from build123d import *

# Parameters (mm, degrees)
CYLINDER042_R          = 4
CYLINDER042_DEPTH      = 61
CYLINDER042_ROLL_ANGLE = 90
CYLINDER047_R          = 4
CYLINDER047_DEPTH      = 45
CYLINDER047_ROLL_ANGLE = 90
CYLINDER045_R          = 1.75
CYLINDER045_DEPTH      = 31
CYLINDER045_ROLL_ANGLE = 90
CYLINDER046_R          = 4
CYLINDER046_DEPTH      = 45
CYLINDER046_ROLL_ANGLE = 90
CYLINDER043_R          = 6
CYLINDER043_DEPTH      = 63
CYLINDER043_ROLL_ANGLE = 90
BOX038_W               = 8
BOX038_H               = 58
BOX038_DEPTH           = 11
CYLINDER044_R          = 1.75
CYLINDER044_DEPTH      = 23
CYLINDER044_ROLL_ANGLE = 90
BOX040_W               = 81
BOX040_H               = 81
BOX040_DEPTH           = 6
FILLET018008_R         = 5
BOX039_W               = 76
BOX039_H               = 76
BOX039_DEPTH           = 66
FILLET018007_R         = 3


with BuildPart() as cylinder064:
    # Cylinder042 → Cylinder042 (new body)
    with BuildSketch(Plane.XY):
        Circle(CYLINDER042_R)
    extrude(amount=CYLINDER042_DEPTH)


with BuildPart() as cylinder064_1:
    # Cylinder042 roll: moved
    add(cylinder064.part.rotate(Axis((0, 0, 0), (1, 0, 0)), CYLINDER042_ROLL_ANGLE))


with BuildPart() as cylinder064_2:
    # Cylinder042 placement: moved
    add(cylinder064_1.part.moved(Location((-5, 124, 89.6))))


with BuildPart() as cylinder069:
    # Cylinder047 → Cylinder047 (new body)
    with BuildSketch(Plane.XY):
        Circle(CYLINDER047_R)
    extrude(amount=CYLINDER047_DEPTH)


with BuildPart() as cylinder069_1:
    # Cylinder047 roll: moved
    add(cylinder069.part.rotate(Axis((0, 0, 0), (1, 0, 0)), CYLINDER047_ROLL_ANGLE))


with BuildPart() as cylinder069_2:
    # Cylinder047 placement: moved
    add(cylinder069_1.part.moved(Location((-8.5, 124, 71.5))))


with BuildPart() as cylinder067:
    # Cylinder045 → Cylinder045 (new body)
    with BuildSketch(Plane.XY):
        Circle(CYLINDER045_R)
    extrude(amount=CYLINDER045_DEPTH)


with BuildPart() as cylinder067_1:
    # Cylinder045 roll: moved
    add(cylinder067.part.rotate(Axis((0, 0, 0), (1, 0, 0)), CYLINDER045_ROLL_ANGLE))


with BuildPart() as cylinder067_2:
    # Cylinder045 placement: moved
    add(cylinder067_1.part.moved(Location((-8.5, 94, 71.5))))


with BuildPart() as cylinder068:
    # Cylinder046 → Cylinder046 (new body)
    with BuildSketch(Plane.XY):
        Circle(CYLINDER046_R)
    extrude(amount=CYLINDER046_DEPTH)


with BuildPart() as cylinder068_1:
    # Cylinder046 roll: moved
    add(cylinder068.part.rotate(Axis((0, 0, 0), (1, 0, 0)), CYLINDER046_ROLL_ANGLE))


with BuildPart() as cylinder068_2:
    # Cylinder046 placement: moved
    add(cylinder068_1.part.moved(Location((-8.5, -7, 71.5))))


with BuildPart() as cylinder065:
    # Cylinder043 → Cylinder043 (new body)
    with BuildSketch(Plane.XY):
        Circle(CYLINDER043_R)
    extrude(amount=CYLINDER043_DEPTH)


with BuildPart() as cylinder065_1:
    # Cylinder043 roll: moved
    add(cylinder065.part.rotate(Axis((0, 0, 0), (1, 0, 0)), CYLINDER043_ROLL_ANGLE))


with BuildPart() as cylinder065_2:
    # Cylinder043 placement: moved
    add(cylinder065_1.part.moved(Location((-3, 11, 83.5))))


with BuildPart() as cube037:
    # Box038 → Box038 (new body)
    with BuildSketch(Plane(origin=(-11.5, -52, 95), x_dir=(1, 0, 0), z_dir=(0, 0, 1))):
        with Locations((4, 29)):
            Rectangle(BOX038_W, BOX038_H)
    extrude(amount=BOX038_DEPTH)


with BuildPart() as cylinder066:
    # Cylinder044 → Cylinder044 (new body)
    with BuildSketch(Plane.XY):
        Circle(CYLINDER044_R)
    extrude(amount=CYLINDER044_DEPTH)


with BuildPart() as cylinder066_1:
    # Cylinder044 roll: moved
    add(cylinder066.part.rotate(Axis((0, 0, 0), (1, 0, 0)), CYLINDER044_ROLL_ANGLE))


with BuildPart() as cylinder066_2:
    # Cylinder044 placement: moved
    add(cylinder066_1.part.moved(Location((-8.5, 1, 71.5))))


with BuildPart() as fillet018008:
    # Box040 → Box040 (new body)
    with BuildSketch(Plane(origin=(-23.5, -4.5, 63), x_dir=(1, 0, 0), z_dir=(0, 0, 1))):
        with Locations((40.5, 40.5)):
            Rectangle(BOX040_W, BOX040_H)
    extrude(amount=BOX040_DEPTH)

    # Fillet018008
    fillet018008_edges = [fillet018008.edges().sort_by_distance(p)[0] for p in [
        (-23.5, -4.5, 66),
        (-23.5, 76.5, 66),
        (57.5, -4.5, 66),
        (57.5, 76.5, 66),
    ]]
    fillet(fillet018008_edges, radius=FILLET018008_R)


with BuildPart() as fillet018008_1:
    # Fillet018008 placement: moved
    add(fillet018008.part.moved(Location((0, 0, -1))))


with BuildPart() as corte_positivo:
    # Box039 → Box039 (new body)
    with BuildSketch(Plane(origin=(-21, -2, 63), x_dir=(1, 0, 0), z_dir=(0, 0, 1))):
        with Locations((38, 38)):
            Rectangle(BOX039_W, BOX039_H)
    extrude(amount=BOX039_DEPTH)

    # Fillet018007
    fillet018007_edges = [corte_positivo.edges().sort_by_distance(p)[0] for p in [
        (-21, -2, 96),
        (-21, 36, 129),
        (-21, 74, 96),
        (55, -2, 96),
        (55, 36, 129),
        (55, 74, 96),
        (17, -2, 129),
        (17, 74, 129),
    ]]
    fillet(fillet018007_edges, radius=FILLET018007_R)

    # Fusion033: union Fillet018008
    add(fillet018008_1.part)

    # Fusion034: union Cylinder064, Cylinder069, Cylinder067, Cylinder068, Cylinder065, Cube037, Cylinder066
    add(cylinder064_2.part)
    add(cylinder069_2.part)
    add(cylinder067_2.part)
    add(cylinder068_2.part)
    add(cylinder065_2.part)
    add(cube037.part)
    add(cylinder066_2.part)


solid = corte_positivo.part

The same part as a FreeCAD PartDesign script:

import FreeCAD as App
import Part
import Sketcher
from FreeCAD import Vector


def edges_at(feature, points):
    """Names of the edges that pass closest to the given points."""
    edges = feature.Shape.Edges
    near = lambda p: min(range(len(edges)), key=lambda i: edges[i].distToShape(Part.Vertex(*p))[0])
    return sorted({f"Edge{near(p) + 1}" for p in points})


def add_polygon(sketch, points):
    """Adds a closed chain of lines whose ends are joined by coincident constraints."""
    first, n = sketch.GeometryCount, len(points)
    for a, b in zip(points, points[1:] + points[:1]):
        sketch.addGeometry(Part.LineSegment(App.Vector(*a, 0), App.Vector(*b, 0)), False)
    for i in range(n):
        sketch.addConstraint(Sketcher.Constraint("Coincident", first + i, 2, first + (i + 1) % n, 1))

doc = App.newDocument("Part")
body = doc.addObject("PartDesign::Body", "Body")

# Sketch on XY plane
sketch1 = body.newObject("Sketcher::SketchObject", "Sketch")
sketch1.AttachmentSupport = (doc.getObject("XY_Plane"), [""])
sketch1.MapMode = "FlatFace"
sketch1.addGeometry(Part.Circle(Vector(0, 0, 0), Vector(0, 0, 1), 4), False)
sketch1.addConstraint([
    Sketcher.Constraint("Coincident", 0, 3, -1, 1),
    Sketcher.Constraint("Diameter", 0, 8.0),
])
pad1 = body.newObject("PartDesign::Pad", "Pad")
pad1.Profile = sketch1
pad1.Length = 61
body2 = doc.addObject("PartDesign::Body", "Body001")
doc.recompute()

body.Placement = App.Placement(Vector(0, 0, 0), App.Rotation(Vector(1, 0, 0), 90))
boolean = body2.newObject("PartDesign::Boolean", "Boolean")
boolean.Type = "Fuse"
boolean.addObjects([body])
body3 = doc.addObject("PartDesign::Body", "Body002")
doc.recompute()

body2.Placement = App.Placement(Vector(-5, 124, 89.6), App.Rotation(Vector(0, 0, 1), 0))
boolean2 = body3.newObject("PartDesign::Boolean", "Boolean001")
boolean2.Type = "Fuse"
boolean2.addObjects([body2])
body4 = doc.addObject("PartDesign::Body", "Body003")

# Sketch on XY plane
sketch2 = body4.newObject("Sketcher::SketchObject", "Sketch001")
sketch2.AttachmentSupport = (doc.getObject("XY_Plane003"), [""])
sketch2.MapMode = "FlatFace"
sketch2.addGeometry(Part.Circle(Vector(0, 0, 0), Vector(0, 0, 1), 4), False)
sketch2.addConstraint([
    Sketcher.Constraint("Coincident", 0, 3, -1, 1),
    Sketcher.Constraint("Diameter", 0, 8.0),
])
pad2 = body4.newObject("PartDesign::Pad", "Pad001")
pad2.Profile = sketch2
pad2.Length = 45
body5 = doc.addObject("PartDesign::Body", "Body004")
doc.recompute()

body4.Placement = App.Placement(Vector(0, 0, 0), App.Rotation(Vector(1, 0, 0), 90))
boolean3 = body5.newObject("PartDesign::Boolean", "Boolean002")
boolean3.Type = "Fuse"
boolean3.addObjects([body4])
body6 = doc.addObject("PartDesign::Body", "Body005")
doc.recompute()

body5.Placement = App.Placement(Vector(-8.5, 124, 71.5), App.Rotation(Vector(0, 0, 1), 0))
boolean4 = body6.newObject("PartDesign::Boolean", "Boolean003")
boolean4.Type = "Fuse"
boolean4.addObjects([body5])
body7 = doc.addObject("PartDesign::Body", "Body006")

# Sketch on XY plane
sketch3 = body7.newObject("Sketcher::SketchObject", "Sketch002")
sketch3.AttachmentSupport = (doc.getObject("XY_Plane006"), [""])
sketch3.MapMode = "FlatFace"
sketch3.addGeometry(Part.Circle(Vector(0, 0, 0), Vector(0, 0, 1), 1.8), False)
sketch3.addConstraint([
    Sketcher.Constraint("Coincident", 0, 3, -1, 1),
    Sketcher.Constraint("Diameter", 0, 3.5),
])
pad3 = body7.newObject("PartDesign::Pad", "Pad002")
pad3.Profile = sketch3
pad3.Length = 31
body8 = doc.addObject("PartDesign::Body", "Body007")
doc.recompute()

body7.Placement = App.Placement(Vector(0, 0, 0), App.Rotation(Vector(1, 0, 0), 90))
boolean5 = body8.newObject("PartDesign::Boolean", "Boolean004")
boolean5.Type = "Fuse"
boolean5.addObjects([body7])
body9 = doc.addObject("PartDesign::Body", "Body008")
doc.recompute()

body8.Placement = App.Placement(Vector(-8.5, 94, 71.5), App.Rotation(Vector(0, 0, 1), 0))
boolean6 = body9.newObject("PartDesign::Boolean", "Boolean005")
boolean6.Type = "Fuse"
boolean6.addObjects([body8])
body10 = doc.addObject("PartDesign::Body", "Body009")

# Sketch on XY plane
sketch4 = body10.newObject("Sketcher::SketchObject", "Sketch003")
sketch4.AttachmentSupport = (doc.getObject("XY_Plane009"), [""])
sketch4.MapMode = "FlatFace"
sketch4.addGeometry(Part.Circle(Vector(0, 0, 0), Vector(0, 0, 1), 4), False)
sketch4.addConstraint([
    Sketcher.Constraint("Coincident", 0, 3, -1, 1),
    Sketcher.Constraint("Diameter", 0, 8.0),
])
pad4 = body10.newObject("PartDesign::Pad", "Pad003")
pad4.Profile = sketch4
pad4.Length = 45
body11 = doc.addObject("PartDesign::Body", "Body010")
doc.recompute()

body10.Placement = App.Placement(Vector(0, 0, 0), App.Rotation(Vector(1, 0, 0), 90))
boolean7 = body11.newObject("PartDesign::Boolean", "Boolean006")
boolean7.Type = "Fuse"
boolean7.addObjects([body10])
body12 = doc.addObject("PartDesign::Body", "Body011")
doc.recompute()

body11.Placement = App.Placement(Vector(-8.5, -7, 71.5), App.Rotation(Vector(0, 0, 1), 0))
boolean8 = body12.newObject("PartDesign::Boolean", "Boolean007")
boolean8.Type = "Fuse"
boolean8.addObjects([body11])
body13 = doc.addObject("PartDesign::Body", "Body012")

# Sketch on XY plane
sketch5 = body13.newObject("Sketcher::SketchObject", "Sketch004")
sketch5.AttachmentSupport = (doc.getObject("XY_Plane012"), [""])
sketch5.MapMode = "FlatFace"
sketch5.addGeometry(Part.Circle(Vector(0, 0, 0), Vector(0, 0, 1), 6), False)
sketch5.addConstraint([
    Sketcher.Constraint("Coincident", 0, 3, -1, 1),
    Sketcher.Constraint("Diameter", 0, 12.0),
])
pad5 = body13.newObject("PartDesign::Pad", "Pad004")
pad5.Profile = sketch5
pad5.Length = 63
body14 = doc.addObject("PartDesign::Body", "Body013")
doc.recompute()

body13.Placement = App.Placement(Vector(0, 0, 0), App.Rotation(Vector(1, 0, 0), 90))
boolean9 = body14.newObject("PartDesign::Boolean", "Boolean008")
boolean9.Type = "Fuse"
boolean9.addObjects([body13])
body15 = doc.addObject("PartDesign::Body", "Body014")
doc.recompute()

body14.Placement = App.Placement(Vector(-3, 11, 83.5), App.Rotation(Vector(0, 0, 1), 0))
boolean10 = body15.newObject("PartDesign::Boolean", "Boolean009")
boolean10.Type = "Fuse"
boolean10.addObjects([body14])
body16 = doc.addObject("PartDesign::Body", "Body015")

# Sketch on XY plane
sketch6 = body16.newObject("Sketcher::SketchObject", "Sketch005")
sketch6.AttachmentSupport = (doc.getObject("XY_Plane015"), [""])
sketch6.MapMode = "FlatFace"
sketch6.AttachmentOffset = App.Placement(Vector(0, 0, 95), App.Rotation())
add_polygon(sketch6, [(-12, 6), (-12, -52), (-4, -52), (-4, 6)])  # lines 0-3
sketch6.addConstraint([
    Sketcher.Constraint("Vertical", 0),
    Sketcher.Constraint("Horizontal", 1),
    Sketcher.Constraint("Vertical", 2),
    Sketcher.Constraint("Horizontal", 3),
    Sketcher.Constraint("DistanceX", 1, 1, 1, 2, 8.0),
    Sketcher.Constraint("DistanceY", 0, 2, 0, 1, 58.0),
    Sketcher.Constraint("DistanceY", 0, 2, -1, 1, 52.0),
    Sketcher.Constraint("DistanceX", 0, 2, -1, 1, 11.5),
])
pad6 = body16.newObject("PartDesign::Pad", "Pad005")
pad6.Profile = sketch6
pad6.Length = 11
body17 = doc.addObject("PartDesign::Body", "Body016")

# Sketch on XY plane
sketch7 = body17.newObject("Sketcher::SketchObject", "Sketch006")
sketch7.AttachmentSupport = (doc.getObject("XY_Plane016"), [""])
sketch7.MapMode = "FlatFace"
sketch7.addGeometry(Part.Circle(Vector(0, 0, 0), Vector(0, 0, 1), 1.8), False)
sketch7.addConstraint([
    Sketcher.Constraint("Coincident", 0, 3, -1, 1),
    Sketcher.Constraint("Diameter", 0, 3.5),
])
pad7 = body17.newObject("PartDesign::Pad", "Pad006")
pad7.Profile = sketch7
pad7.Length = 23
body18 = doc.addObject("PartDesign::Body", "Body017")
doc.recompute()

body17.Placement = App.Placement(Vector(0, 0, 0), App.Rotation(Vector(1, 0, 0), 90))
boolean11 = body18.newObject("PartDesign::Boolean", "Boolean010")
boolean11.Type = "Fuse"
boolean11.addObjects([body17])
body19 = doc.addObject("PartDesign::Body", "Body018")
doc.recompute()

body18.Placement = App.Placement(Vector(-8.5, 1, 71.5), App.Rotation(Vector(0, 0, 1), 0))
boolean12 = body19.newObject("PartDesign::Boolean", "Boolean011")
boolean12.Type = "Fuse"
boolean12.addObjects([body18])
body20 = doc.addObject("PartDesign::Body", "Body019")

# Sketch on XY plane
sketch8 = body20.newObject("Sketcher::SketchObject", "Sketch007")
sketch8.AttachmentSupport = (doc.getObject("XY_Plane019"), [""])
sketch8.MapMode = "FlatFace"
sketch8.AttachmentOffset = App.Placement(Vector(0, 0, 63), App.Rotation())
add_polygon(sketch8, [(-24, 76), (-24, -4), (58, -4), (58, 76)])  # lines 0-3
sketch8.addConstraint([
    Sketcher.Constraint("Vertical", 0),
    Sketcher.Constraint("Horizontal", 1),
    Sketcher.Constraint("Vertical", 2),
    Sketcher.Constraint("Horizontal", 3),
    Sketcher.Constraint("Equal", 3, 0),
    Sketcher.Constraint("DistanceX", 1, 1, 1, 2, 81.0),
    Sketcher.Constraint("DistanceX", 0, 2, -1, 1, 23.5),
    Sketcher.Constraint("DistanceY", 0, 2, -1, 1, 4.5),
])
pad8 = body20.newObject("PartDesign::Pad", "Pad007")
pad8.Profile = sketch8
pad8.Length = 6
doc.recompute()

fillet = body20.newObject("PartDesign::Fillet", "Fillet")
fillet.Base = (pad8, edges_at(pad8, [
    (-23.5, -4.5, 66),
    (-23.5, 76.5, 66),
    (57.5, -4.5, 66),
    (57.5, 76.5, 66),
]))
fillet.Radius = 5
body21 = doc.addObject("PartDesign::Body", "Body020")
doc.recompute()

body20.Placement = App.Placement(Vector(0, 0, -1), App.Rotation(Vector(0, 0, 1), 0))
boolean13 = body21.newObject("PartDesign::Boolean", "Boolean012")
boolean13.Type = "Fuse"
boolean13.addObjects([body20])
body22 = doc.addObject("PartDesign::Body", "Body021")
body22.AllowCompound = True

# Sketch on XY plane
sketch9 = body22.newObject("Sketcher::SketchObject", "Sketch008")
sketch9.AttachmentSupport = (doc.getObject("XY_Plane021"), [""])
sketch9.MapMode = "FlatFace"
sketch9.AttachmentOffset = App.Placement(Vector(0, 0, 63), App.Rotation())
add_polygon(sketch9, [(-21, 74), (-21, -2), (55, -2), (55, 74)])  # lines 0-3
sketch9.addConstraint([
    Sketcher.Constraint("Vertical", 0),
    Sketcher.Constraint("Horizontal", 1),
    Sketcher.Constraint("Vertical", 2),
    Sketcher.Constraint("Horizontal", 3),
    Sketcher.Constraint("Equal", 3, 0),
    Sketcher.Constraint("DistanceX", 1, 1, 1, 2, 76.0),
    Sketcher.Constraint("DistanceX", 0, 2, -1, 1, 21.0),
    Sketcher.Constraint("DistanceY", 0, 2, -1, 1, 2.0),
])
pad9 = body22.newObject("PartDesign::Pad", "Pad008")
pad9.Profile = sketch9
pad9.Length = 66
doc.recompute()

fillet2 = body22.newObject("PartDesign::Fillet", "Fillet001")
fillet2.Base = (pad9, edges_at(pad9, [
    (-21, -2, 96),
    (-21, 36, 129),
    (-21, 74, 96),
    (55, -2, 96),
    (55, 36, 129),
    (55, 74, 96),
    (17, -2, 129),
    (17, 74, 129),
]))
fillet2.Radius = 3
doc.recompute()

boolean14 = body22.newObject("PartDesign::Boolean", "Boolean013")
boolean14.Type = "Fuse"
boolean14.addObjects([body21])
doc.recompute()

boolean15 = body22.newObject("PartDesign::Boolean", "Boolean014")
boolean15.Type = "Fuse"
boolean15.addObjects([body3])
doc.recompute()

boolean16 = body22.newObject("PartDesign::Boolean", "Boolean015")
boolean16.Type = "Fuse"
boolean16.addObjects([body6])
doc.recompute()

boolean17 = body22.newObject("PartDesign::Boolean", "Boolean016")
boolean17.Type = "Fuse"
boolean17.addObjects([body9])
doc.recompute()

boolean18 = body22.newObject("PartDesign::Boolean", "Boolean017")
boolean18.Type = "Fuse"
boolean18.addObjects([body12])
doc.recompute()

boolean19 = body22.newObject("PartDesign::Boolean", "Boolean018")
boolean19.Type = "Fuse"
boolean19.addObjects([body15])
doc.recompute()

boolean20 = body22.newObject("PartDesign::Boolean", "Boolean019")
boolean20.Type = "Fuse"
boolean20.addObjects([body16])
doc.recompute()

boolean21 = body22.newObject("PartDesign::Boolean", "Boolean020")
boolean21.Type = "Fuse"
boolean21.addObjects([body19])

doc.recompute()
